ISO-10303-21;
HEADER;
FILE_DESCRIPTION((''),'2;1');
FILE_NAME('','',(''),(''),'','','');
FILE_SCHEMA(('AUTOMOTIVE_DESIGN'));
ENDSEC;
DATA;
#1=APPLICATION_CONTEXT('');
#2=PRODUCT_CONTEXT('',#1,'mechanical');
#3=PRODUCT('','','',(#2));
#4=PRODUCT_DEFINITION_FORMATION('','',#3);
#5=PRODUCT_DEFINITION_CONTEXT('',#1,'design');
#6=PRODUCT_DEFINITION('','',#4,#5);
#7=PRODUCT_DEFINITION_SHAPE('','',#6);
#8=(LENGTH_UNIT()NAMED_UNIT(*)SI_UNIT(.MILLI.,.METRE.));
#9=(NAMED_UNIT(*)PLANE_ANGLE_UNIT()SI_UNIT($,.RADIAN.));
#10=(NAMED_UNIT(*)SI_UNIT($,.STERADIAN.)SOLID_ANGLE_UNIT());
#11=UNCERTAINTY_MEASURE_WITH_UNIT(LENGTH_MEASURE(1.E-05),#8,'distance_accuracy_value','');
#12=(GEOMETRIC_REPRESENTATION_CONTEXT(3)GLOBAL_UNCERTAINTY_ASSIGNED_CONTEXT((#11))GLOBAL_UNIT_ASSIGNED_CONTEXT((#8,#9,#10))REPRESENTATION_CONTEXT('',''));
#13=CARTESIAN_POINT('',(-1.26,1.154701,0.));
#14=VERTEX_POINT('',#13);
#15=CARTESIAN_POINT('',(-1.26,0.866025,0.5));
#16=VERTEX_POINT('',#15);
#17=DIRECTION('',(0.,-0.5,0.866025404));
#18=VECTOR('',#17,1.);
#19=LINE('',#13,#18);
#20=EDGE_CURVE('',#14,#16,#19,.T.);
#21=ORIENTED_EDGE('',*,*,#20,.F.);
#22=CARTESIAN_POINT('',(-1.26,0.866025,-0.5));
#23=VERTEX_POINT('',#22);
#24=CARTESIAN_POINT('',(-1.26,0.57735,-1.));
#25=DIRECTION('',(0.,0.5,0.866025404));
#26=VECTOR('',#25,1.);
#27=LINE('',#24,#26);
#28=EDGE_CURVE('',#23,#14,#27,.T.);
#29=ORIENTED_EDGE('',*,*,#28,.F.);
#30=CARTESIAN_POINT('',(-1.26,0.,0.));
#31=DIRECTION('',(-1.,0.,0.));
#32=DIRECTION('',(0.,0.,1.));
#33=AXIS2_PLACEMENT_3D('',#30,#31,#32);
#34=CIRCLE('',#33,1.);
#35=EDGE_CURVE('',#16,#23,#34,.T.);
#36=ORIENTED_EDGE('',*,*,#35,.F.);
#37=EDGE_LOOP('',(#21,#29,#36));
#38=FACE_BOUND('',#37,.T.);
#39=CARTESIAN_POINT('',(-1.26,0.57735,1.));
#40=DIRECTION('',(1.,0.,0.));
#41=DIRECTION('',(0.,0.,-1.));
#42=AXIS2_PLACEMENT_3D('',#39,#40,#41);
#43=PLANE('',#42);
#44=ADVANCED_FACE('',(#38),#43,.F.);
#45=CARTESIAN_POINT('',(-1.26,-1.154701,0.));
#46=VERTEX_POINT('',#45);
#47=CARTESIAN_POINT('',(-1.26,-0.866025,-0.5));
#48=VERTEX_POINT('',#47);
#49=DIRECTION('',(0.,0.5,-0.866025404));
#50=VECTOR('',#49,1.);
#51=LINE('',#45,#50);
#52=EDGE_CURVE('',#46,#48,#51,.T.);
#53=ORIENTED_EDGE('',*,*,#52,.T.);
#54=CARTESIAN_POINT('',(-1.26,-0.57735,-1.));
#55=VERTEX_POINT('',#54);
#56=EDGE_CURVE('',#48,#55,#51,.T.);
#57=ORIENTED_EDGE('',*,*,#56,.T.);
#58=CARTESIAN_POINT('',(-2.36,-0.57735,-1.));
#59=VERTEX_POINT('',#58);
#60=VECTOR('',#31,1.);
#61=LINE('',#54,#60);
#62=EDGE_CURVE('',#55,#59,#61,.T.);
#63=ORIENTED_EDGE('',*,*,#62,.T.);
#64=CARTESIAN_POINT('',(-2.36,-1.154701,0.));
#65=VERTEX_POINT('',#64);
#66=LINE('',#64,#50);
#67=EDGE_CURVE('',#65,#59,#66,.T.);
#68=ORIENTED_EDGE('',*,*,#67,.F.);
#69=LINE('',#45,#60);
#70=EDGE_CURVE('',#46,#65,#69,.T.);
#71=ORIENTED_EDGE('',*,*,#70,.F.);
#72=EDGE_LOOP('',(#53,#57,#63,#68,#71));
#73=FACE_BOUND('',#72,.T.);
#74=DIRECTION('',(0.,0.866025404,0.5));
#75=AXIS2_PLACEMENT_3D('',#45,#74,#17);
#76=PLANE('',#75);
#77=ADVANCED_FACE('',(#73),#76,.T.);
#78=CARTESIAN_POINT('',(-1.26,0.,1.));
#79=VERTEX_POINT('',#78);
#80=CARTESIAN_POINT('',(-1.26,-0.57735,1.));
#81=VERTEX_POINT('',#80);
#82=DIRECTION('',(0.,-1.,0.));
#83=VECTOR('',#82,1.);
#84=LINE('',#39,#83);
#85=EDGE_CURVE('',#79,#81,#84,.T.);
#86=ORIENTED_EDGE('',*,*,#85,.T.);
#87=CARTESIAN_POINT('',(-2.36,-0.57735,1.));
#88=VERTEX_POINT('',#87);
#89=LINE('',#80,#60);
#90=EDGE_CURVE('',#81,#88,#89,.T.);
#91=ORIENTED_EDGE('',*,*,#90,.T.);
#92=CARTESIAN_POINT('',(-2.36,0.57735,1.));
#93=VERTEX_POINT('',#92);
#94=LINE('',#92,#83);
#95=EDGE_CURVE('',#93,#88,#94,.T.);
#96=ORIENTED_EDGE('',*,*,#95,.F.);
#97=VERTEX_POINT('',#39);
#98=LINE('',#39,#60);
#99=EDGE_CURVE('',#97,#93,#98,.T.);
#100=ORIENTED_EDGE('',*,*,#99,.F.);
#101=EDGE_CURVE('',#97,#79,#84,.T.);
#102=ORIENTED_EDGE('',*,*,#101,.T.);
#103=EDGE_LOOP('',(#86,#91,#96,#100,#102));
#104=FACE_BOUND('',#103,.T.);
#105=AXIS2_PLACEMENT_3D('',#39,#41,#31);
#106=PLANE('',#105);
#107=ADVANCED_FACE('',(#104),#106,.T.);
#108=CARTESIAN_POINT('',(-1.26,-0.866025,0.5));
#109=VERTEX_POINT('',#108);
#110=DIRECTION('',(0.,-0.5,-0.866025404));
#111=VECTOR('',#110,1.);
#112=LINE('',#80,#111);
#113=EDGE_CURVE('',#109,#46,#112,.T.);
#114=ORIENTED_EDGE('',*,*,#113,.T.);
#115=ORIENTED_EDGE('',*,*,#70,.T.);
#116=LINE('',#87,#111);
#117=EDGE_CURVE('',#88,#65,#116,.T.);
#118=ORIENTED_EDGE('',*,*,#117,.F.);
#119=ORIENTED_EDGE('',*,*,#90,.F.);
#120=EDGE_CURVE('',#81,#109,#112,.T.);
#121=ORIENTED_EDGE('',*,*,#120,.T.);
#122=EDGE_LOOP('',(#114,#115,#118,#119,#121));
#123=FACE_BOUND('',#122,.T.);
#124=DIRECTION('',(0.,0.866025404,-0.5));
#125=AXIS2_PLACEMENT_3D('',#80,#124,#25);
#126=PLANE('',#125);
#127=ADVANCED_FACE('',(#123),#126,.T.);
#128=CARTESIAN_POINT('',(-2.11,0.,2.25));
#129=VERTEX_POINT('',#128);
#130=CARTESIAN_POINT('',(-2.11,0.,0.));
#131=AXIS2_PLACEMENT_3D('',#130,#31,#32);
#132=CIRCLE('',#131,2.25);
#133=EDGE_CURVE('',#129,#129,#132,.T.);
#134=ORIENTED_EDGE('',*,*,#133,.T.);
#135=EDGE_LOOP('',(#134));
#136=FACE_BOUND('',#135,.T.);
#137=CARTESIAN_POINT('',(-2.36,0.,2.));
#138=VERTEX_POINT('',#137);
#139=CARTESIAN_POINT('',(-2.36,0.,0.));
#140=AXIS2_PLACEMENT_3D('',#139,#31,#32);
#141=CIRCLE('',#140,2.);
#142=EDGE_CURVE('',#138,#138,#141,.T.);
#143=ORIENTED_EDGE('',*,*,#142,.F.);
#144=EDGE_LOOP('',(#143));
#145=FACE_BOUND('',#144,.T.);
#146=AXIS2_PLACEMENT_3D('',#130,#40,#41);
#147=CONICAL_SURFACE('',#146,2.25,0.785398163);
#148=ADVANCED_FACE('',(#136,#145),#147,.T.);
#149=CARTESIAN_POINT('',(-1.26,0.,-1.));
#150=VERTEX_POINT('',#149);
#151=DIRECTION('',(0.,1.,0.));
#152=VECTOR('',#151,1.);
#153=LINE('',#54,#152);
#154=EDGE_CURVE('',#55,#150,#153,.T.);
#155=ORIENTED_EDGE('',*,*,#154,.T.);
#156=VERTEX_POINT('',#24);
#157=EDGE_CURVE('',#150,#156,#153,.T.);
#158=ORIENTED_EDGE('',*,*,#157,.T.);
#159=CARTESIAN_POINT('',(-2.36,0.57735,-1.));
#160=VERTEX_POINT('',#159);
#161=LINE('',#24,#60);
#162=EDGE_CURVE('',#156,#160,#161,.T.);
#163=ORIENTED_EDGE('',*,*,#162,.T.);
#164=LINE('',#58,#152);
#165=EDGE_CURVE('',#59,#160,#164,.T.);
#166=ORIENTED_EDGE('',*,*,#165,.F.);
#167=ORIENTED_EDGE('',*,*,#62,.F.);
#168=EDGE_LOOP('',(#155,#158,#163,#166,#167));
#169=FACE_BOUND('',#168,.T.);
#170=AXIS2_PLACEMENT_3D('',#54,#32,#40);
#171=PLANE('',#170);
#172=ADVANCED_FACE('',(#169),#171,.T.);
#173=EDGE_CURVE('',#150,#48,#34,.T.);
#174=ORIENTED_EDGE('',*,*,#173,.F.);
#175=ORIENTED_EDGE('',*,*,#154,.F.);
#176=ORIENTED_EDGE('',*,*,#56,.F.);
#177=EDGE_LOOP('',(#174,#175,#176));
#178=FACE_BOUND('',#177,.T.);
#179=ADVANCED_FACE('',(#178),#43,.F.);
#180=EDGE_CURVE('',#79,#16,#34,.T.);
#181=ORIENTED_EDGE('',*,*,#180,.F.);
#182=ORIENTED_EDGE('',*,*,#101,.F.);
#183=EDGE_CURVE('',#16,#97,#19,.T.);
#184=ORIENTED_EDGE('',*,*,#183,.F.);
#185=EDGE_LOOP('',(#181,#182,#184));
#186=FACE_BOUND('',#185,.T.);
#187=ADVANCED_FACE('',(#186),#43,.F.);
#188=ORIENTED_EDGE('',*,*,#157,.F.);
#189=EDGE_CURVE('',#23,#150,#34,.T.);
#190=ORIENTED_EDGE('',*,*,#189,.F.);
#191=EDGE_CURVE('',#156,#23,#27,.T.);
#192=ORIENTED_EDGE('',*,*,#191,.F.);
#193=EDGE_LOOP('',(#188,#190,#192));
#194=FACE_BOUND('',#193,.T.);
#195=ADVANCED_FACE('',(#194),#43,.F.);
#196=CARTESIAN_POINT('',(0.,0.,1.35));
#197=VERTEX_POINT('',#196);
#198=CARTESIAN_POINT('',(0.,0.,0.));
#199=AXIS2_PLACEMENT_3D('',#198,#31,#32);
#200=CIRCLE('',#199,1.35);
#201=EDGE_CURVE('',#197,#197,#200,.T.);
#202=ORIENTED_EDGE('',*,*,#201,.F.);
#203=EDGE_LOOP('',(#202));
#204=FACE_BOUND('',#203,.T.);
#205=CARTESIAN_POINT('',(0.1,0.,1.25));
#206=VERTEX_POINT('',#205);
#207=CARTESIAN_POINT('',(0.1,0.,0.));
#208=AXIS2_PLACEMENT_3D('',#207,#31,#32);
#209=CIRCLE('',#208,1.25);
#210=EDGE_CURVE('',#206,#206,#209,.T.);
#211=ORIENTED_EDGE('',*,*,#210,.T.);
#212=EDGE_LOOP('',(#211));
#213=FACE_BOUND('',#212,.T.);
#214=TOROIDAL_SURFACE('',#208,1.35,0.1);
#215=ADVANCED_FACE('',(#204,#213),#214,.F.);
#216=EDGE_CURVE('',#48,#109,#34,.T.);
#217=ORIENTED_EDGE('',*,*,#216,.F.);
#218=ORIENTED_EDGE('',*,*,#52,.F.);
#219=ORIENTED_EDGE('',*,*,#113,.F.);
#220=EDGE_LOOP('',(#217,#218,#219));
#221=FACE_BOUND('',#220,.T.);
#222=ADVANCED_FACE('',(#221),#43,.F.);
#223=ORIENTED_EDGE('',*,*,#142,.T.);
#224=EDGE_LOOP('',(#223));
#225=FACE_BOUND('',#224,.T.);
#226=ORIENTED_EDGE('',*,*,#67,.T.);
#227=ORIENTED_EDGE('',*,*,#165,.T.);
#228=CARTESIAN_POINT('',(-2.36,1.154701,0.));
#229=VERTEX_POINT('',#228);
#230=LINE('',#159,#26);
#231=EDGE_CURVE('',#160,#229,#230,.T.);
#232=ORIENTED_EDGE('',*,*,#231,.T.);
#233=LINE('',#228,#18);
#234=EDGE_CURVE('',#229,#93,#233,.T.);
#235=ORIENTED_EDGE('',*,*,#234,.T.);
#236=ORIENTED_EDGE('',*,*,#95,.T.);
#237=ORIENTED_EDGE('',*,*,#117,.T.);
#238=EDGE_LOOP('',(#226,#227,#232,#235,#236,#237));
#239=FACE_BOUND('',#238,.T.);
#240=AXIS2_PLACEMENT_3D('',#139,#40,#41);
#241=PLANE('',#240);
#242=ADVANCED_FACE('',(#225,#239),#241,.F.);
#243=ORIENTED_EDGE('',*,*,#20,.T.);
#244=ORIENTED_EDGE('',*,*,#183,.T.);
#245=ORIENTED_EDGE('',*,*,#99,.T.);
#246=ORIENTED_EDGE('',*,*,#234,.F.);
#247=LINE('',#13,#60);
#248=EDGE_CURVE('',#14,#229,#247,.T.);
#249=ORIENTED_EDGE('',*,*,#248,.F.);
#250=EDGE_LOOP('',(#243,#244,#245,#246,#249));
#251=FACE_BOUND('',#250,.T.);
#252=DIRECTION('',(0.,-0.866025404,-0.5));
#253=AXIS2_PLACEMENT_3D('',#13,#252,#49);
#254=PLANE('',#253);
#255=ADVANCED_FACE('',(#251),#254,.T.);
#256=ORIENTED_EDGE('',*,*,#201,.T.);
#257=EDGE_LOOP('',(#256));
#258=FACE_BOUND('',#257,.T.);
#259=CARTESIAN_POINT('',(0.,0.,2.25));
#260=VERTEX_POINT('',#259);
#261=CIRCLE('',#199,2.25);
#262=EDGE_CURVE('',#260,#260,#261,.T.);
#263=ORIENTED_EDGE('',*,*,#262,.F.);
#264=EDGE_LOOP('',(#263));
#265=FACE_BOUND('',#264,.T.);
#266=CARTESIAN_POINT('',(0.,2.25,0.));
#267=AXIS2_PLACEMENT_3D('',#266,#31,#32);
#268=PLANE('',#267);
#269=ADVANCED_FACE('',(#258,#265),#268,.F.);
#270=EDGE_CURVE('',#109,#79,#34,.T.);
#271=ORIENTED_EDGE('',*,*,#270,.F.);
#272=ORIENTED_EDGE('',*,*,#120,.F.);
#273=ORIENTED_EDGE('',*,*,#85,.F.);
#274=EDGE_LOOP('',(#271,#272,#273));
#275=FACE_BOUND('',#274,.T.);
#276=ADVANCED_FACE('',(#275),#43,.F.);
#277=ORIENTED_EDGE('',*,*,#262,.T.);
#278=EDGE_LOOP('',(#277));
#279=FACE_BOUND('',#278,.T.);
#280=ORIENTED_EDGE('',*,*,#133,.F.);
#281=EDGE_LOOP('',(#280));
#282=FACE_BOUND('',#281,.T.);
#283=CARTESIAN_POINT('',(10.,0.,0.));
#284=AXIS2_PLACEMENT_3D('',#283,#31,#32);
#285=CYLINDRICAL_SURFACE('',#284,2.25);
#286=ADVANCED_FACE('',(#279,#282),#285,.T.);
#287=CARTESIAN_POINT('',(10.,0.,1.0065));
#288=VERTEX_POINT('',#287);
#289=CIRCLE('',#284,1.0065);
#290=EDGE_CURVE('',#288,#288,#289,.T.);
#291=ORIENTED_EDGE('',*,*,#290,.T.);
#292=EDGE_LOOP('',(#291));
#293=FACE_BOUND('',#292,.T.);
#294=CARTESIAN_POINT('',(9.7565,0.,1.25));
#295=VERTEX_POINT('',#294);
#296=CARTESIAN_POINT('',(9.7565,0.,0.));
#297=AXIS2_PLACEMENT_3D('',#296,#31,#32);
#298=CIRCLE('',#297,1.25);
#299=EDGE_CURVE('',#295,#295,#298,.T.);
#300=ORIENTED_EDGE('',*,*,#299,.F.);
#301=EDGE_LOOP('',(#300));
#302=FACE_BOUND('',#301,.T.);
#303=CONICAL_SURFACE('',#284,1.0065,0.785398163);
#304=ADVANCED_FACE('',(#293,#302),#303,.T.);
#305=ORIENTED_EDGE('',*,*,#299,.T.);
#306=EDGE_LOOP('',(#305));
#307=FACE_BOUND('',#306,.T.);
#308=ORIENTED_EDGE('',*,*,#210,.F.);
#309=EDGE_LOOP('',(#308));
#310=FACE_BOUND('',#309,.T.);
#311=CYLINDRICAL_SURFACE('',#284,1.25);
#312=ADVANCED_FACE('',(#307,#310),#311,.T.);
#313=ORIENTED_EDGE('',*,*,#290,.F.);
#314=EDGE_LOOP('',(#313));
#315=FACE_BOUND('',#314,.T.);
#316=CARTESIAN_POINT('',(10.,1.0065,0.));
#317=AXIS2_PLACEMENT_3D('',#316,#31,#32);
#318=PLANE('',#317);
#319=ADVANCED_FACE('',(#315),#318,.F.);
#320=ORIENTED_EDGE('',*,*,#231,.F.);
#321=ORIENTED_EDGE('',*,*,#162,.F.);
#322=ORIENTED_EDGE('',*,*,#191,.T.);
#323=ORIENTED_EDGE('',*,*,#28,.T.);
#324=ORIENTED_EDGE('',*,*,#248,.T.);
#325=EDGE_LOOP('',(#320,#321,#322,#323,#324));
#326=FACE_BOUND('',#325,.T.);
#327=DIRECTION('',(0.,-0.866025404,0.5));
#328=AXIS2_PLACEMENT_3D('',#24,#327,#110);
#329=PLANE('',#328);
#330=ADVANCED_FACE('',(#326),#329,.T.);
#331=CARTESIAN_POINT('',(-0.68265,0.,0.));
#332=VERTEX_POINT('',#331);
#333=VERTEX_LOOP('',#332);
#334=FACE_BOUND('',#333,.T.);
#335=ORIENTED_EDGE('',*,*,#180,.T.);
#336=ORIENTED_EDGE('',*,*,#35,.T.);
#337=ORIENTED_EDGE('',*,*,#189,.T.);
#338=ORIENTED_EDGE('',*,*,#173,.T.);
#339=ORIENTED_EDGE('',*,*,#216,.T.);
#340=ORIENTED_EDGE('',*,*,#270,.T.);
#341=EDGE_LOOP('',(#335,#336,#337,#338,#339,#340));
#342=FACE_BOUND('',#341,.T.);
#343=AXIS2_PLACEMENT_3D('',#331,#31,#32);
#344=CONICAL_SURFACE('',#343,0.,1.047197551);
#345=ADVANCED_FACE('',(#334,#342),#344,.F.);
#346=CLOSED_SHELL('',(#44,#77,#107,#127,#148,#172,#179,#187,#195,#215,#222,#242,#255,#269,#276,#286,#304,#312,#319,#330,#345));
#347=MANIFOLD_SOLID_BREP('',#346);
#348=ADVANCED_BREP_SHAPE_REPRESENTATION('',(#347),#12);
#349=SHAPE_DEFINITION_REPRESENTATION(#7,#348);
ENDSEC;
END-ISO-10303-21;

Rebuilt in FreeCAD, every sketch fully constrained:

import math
import FreeCAD as App
import Part
import Sketcher
Q = App.Units.Quantity


def add_polygon(sketch, points):
    """Adds a closed chain of lines whose ends are joined by coincident constraints."""
    first, n = sketch.GeometryCount, len(points)
    for a, b in zip(points, points[1:] + points[:1]):
        sketch.addGeometry(Part.LineSegment(App.Vector(*a, 0), App.Vector(*b, 0)), False)
    for i in range(n):
        sketch.addConstraint(Sketcher.Constraint("Coincident", first + i, 2, first + (i + 1) % n, 1))

doc = App.newDocument("Part")
params = doc.addObject("Spreadsheet::Sheet", "Params")
for row, (alias, value) in enumerate([
    ("sketch1_radius", "0.1 mm"),
    ("sketch1_height", "2 mm"),
    ("sketch1_height2", "0.9 mm"),
    ("sketch1_width", "12.36 mm"),
    ("sketch1_width2", "2.11 mm"),
    ("revolution_angle", "360 deg"),
    ("pocket1_length", "1.1 mm"),
    ("sketch3_height", "1 mm"),
    ("groove_angle", "360 deg"),
], start=1):
    params.set(f"A{row}", alias)
    params.set(f"B{row}", "=" + value)
    params.setAlias(f"B{row}", alias)

body = doc.addObject("PartDesign::Body", "Body")

sketch1 = body.newObject("Sketcher::SketchObject", "Sketch")
sketch1.AttachmentSupport = (doc.getObject("XY_Plane"), [""])
sketch1.MapMode = "FlatFace"
sketch1.addGeometry([
    Part.LineSegment(App.Vector(-2.36, 2, 0), App.Vector(-2.36, 0, 0)),
    Part.LineSegment(App.Vector(-2.36, 0, 0), App.Vector(10, 0, 0)),
    Part.LineSegment(App.Vector(10, 0, 0), App.Vector(10, 1.01, 0)),
    Part.LineSegment(App.Vector(10, 1.01, 0), App.Vector(9.76, 1.25, 0)),
    Part.LineSegment(App.Vector(9.76, 1.25, 0), App.Vector(0.1, 1.25, 0)),
    Part.ArcOfCircle(Part.Circle(App.Vector(0.1, 1.35, 0), App.Vector(0, 0, 1), 0.1), math.radians(180), math.radians(270)),
    Part.LineSegment(App.Vector(0, 1.35, 0), App.Vector(0, 2.25, 0)),
    Part.LineSegment(App.Vector(0, 2.25, 0), App.Vector(-2.11, 2.25, 0)),
    Part.LineSegment(App.Vector(-2.11, 2.25, 0), App.Vector(-2.36, 2, 0)),
], False)
sketch1.addConstraint([
    Sketcher.Constraint("Coincident", 0, 2, 1, 1),
    Sketcher.Constraint("Coincident", 1, 2, 2, 1),
    Sketcher.Constraint("Coincident", 2, 2, 3, 1),
    Sketcher.Constraint("Coincident", 3, 2, 4, 1),
    Sketcher.Constraint("Tangent", 4, 2, 5, 2),
    Sketcher.Constraint("Tangent", 5, 1, 6, 1),
    Sketcher.Constraint("Coincident", 6, 2, 7, 1),
    Sketcher.Constraint("Coincident", 7, 2, 8, 1),
    Sketcher.Constraint("Coincident", 8, 2, 0, 1),
    Sketcher.Constraint("Vertical", 0),
    Sketcher.Constraint("Horizontal", 1),
    Sketcher.Constraint("Vertical", 2),
    Sketcher.Constraint("Horizontal", 4),
    Sketcher.Constraint("Vertical", 6),
    Sketcher.Constraint("Horizontal", 7),
    Sketcher.Constraint("PointOnObject", 0, 2, -1),
    Sketcher.Constraint("PointOnObject", 5, 1, -2),
    Sketcher.Constraint("Perpendicular", 3, 8),
    Sketcher.Constraint("Radius", 5, Q("0.1 mm")),
    Sketcher.Constraint("DistanceY", 0, 2, 0, 1, Q("2 mm")),
    Sketcher.Constraint("Angle", 3, Q("135 deg")),
    Sketcher.Constraint("DistanceY", 6, 1, 6, 2, Q("0.9 mm")),
    Sketcher.Constraint("DistanceX", -1, 1, 1, 2, Q("10 mm")),
    Sketcher.Constraint("DistanceX", 1, 1, 1, 2, Q("12.36 mm")),
    Sketcher.Constraint("DistanceX", 7, 2, 7, 1, Q("2.11 mm")),
    Sketcher.Constraint("DistanceX", 4, 2, 4, 1, Q("9.6565 mm")),
])
sketch1.setExpression("Constraints[18]", "Params.sketch1_radius")
sketch1.setExpression("Constraints[19]", "Params.sketch1_height")
sketch1.setExpression("Constraints[21]", "Params.sketch1_height2")
sketch1.setExpression("Constraints[23]", "Params.sketch1_width")
sketch1.setExpression("Constraints[24]", "Params.sketch1_width2")
revolution = body.newObject("PartDesign::Revolution", "Revolution")
revolution.Profile = sketch1
revolution.ReferenceAxis = (sketch1, ["H_Axis"])
revolution.setExpression("Angle", "Params.revolution_angle")

sketch2 = body.newObject("Sketcher::SketchObject", "Sketch001")
sketch2.AttachmentSupport = (doc.getObject("YZ_Plane"), [""])
sketch2.MapMode = "FlatFace"
sketch2.AttachmentOffset = App.Placement(App.Vector(0, 0, -2.36), App.Rotation())
add_polygon(sketch2, [(0.6, 1), (-0.6, 1), (-1.2, 0), (-0.6, -1), (0.6, -1), (1.2, 0)])
sketch2.addConstraint([
    Sketcher.Constraint("Horizontal", 0),
    Sketcher.Constraint("Horizontal", 3),
    Sketcher.Constraint("Symmetric", 0, 2, 3, 2, -1, 1),
    Sketcher.Constraint("Symmetric", 1, 2, 4, 2, -1, 1),
    Sketcher.Constraint("PointOnObject", 1, 2, -1),
    Sketcher.Constraint("Parallel", 2, 5),
    Sketcher.Constraint("Vertical", 0, 2, 2, 2),
    Sketcher.Constraint("Angle", 1, Q("-120 deg")),
    Sketcher.Constraint("DistanceY", -1, 1, 0, 2, Q("1 mm")),
    Sketcher.Constraint("DistanceX", 0, 2, 0, 1, Q("1.154701 mm")),
])
pocket1 = body.newObject("PartDesign::Pocket", "Pocket")
pocket1.Profile = sketch2
pocket1.setExpression("Length", "Params.pocket1_length")
pocket1.Reversed = True

sketch3 = body.newObject("Sketcher::SketchObject", "Sketch002")
sketch3.AttachmentSupport = (doc.getObject("XY_Plane"), [""])
sketch3.MapMode = "FlatFace"
add_polygon(sketch3, [(-1.3, 1), (-1.3, 0), (-0.7, 0)])
sketch3.addConstraint([
    Sketcher.Constraint("Vertical", 0),
    Sketcher.Constraint("Horizontal", 1),
    Sketcher.Constraint("PointOnObject", 0, 2, -1),
    Sketcher.Constraint("DistanceY", 0, 2, 0, 1, Q("1 mm")),
    Sketcher.Constraint("Angle", 2, Q("120 deg")),
    Sketcher.Constraint("DistanceX", 0, 2, -1, 1, Q("1.26 mm")),
])
sketch3.setExpression("Constraints[6]", "Params.sketch3_height")
groove = body.newObject("PartDesign::Groove", "Groove")
groove.Profile = sketch3
groove.ReferenceAxis = (sketch3, ["H_Axis"])
groove.setExpression("Angle", "Params.groove_angle")

doc.recompute()
